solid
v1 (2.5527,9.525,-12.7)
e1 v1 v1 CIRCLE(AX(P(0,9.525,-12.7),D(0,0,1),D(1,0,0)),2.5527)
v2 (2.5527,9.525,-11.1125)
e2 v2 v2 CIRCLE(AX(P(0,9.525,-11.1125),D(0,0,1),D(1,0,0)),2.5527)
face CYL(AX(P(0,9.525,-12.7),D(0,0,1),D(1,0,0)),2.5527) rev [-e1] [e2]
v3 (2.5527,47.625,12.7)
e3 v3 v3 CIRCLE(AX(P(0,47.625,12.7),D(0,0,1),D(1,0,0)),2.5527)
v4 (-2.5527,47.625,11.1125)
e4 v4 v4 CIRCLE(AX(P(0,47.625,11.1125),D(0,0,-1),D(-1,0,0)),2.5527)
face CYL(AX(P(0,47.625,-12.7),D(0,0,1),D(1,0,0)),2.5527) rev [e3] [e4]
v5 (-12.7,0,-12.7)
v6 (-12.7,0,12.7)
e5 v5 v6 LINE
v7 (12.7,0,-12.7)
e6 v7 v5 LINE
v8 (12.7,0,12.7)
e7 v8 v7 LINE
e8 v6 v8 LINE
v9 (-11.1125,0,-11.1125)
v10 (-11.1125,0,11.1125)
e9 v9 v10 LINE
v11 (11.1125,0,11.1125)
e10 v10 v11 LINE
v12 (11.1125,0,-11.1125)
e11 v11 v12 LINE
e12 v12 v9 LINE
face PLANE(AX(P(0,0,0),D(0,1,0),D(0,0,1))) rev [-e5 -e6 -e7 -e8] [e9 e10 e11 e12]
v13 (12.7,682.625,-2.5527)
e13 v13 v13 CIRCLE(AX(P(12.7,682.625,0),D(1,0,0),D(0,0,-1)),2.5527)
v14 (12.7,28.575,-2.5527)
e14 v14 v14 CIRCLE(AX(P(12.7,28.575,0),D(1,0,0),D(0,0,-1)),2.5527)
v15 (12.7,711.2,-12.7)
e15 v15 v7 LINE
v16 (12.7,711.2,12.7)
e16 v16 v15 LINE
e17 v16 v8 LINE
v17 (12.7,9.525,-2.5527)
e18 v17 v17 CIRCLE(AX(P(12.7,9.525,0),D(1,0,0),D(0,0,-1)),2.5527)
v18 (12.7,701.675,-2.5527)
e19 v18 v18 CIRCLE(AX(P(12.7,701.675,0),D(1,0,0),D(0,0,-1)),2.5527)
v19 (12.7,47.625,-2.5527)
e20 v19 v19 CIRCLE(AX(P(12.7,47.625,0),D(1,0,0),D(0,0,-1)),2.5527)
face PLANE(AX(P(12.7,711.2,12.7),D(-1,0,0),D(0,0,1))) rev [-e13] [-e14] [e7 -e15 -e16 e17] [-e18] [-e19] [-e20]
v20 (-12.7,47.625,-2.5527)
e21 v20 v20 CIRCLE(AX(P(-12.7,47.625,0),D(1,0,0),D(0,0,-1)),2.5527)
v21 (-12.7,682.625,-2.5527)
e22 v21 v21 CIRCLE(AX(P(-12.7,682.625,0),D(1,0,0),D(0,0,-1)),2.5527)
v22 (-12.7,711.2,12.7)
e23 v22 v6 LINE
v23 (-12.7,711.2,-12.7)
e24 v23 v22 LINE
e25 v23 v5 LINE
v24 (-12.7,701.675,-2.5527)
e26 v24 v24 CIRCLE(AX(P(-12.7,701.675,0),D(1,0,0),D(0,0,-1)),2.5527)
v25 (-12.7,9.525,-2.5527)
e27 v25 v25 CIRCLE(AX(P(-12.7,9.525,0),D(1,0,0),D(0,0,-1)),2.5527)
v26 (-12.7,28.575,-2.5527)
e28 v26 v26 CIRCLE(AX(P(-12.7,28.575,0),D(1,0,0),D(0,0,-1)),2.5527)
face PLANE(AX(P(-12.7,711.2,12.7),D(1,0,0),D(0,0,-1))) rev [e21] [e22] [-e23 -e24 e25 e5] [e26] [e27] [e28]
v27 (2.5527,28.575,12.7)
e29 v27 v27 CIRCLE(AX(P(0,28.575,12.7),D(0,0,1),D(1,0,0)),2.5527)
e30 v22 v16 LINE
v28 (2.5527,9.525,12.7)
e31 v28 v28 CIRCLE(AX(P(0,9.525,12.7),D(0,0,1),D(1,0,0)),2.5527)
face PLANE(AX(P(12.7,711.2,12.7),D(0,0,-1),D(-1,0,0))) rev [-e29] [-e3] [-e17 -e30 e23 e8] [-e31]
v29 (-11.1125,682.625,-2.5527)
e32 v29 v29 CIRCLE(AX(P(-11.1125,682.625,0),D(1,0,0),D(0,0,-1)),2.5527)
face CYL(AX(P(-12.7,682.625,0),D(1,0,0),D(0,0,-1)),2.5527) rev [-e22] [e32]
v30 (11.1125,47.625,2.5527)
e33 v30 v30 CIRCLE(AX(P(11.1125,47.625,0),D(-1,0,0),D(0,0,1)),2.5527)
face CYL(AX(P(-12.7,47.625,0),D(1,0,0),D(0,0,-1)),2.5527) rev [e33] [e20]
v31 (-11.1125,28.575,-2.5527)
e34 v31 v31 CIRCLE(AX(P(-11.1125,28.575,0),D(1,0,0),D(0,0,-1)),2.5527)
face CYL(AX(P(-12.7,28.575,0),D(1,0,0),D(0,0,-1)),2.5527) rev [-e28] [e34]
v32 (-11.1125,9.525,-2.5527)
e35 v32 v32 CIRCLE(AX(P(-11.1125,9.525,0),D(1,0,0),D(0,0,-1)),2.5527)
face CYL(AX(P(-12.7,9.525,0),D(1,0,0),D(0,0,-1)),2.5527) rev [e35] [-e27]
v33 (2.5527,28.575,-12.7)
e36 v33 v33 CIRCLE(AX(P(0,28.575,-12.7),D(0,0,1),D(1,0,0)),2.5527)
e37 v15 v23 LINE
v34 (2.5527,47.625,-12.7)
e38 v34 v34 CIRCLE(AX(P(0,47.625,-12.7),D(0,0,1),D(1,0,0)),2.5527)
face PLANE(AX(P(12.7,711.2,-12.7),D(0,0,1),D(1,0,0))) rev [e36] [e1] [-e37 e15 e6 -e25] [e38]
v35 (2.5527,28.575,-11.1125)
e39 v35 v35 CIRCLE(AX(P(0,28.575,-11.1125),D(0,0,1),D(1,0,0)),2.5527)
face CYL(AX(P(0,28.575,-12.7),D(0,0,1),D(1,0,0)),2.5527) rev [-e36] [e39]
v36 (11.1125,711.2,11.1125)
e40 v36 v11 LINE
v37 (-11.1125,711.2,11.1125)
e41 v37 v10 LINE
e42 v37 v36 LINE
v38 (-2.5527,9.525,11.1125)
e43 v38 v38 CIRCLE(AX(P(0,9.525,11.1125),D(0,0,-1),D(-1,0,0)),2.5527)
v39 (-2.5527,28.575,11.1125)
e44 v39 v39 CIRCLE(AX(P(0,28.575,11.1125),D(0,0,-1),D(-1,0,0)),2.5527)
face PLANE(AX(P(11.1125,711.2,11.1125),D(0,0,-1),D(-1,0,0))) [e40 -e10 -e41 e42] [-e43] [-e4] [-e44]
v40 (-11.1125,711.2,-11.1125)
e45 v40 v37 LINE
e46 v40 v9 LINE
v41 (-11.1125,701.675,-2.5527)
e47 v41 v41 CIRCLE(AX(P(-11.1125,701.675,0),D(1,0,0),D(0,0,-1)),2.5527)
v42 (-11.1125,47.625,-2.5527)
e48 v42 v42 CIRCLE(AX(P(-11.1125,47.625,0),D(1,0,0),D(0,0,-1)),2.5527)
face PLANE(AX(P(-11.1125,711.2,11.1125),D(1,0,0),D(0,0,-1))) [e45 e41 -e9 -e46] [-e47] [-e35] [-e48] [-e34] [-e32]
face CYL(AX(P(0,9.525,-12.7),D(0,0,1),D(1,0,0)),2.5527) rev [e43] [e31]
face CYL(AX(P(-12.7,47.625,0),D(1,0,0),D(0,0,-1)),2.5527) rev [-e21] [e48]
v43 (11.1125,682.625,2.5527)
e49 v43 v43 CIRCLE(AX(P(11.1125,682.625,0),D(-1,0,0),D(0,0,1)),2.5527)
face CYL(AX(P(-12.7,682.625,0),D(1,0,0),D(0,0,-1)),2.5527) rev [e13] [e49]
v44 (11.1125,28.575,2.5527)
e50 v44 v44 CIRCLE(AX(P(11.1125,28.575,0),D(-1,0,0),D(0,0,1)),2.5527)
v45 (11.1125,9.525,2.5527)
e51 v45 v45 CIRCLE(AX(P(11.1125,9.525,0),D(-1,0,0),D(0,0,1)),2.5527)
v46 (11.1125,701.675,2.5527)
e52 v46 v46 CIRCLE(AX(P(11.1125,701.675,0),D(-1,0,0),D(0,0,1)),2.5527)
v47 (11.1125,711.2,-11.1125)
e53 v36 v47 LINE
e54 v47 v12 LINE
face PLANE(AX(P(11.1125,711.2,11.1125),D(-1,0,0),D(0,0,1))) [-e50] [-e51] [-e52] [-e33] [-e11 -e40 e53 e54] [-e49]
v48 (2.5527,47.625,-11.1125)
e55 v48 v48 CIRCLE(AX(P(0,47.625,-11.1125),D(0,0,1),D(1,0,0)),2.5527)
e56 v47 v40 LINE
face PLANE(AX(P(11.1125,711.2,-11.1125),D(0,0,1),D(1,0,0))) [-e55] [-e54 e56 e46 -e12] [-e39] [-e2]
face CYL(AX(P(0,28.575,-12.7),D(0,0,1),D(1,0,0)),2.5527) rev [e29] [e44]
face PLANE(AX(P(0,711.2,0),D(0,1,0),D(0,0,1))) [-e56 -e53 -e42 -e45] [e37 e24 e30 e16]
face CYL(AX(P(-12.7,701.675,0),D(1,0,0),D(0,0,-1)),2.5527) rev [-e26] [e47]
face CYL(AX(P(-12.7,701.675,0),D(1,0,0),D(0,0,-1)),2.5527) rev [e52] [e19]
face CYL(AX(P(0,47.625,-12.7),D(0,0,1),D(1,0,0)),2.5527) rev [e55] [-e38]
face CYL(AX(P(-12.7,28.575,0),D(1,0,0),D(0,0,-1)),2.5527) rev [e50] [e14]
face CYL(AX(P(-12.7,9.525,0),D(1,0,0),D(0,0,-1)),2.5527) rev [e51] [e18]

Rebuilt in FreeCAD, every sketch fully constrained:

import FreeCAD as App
import Part
import Sketcher
Q = App.Units.Quantity


def add_polygon(sketch, points):
    """Adds a closed chain of lines whose ends are joined by coincident constraints."""
    first, n = sketch.GeometryCount, len(points)
    for a, b in zip(points, points[1:] + points[:1]):
        sketch.addGeometry(Part.LineSegment(App.Vector(*a, 0), App.Vector(*b, 0)), False)
    for i in range(n):
        sketch.addConstraint(Sketcher.Constraint("Coincident", first + i, 2, first + (i + 1) % n, 1))

doc = App.newDocument("Part")
body = doc.addObject("PartDesign::Body", "Body")

# Sketch on XZ plane
sketch1 = body.newObject("Sketcher::SketchObject", "Sketch")
sketch1.AttachmentSupport = (doc.getObject("XZ_Plane"), [""])
sketch1.MapMode = "FlatFace"
add_polygon(sketch1, [(-13, -13), (-13, 13), (13, 13), (13, -13)])  # lines 0-3
add_polygon(sketch1, [(11, 11), (-11, 11), (-11, -11), (11, -11)])  # lines 4-7
sketch1.addConstraint([
    Sketcher.Constraint("Vertical", 0),
    Sketcher.Constraint("Horizontal", 1),
    Sketcher.Constraint("Vertical", 2),
    Sketcher.Constraint("Horizontal", 3),
    Sketcher.Constraint("Horizontal", 4),
    Sketcher.Constraint("Vertical", 5),
    Sketcher.Constraint("Horizontal", 6),
    Sketcher.Constraint("Vertical", 7),
    Sketcher.Constraint("Symmetric", 0, 2, 2, 2, -1, 1),
    Sketcher.Constraint("Symmetric", 4, 2, 6, 2, -1, 1),
    Sketcher.Constraint("Equal", 3, 0),
    Sketcher.Constraint("Equal", 6, 5),
    Sketcher.Constraint("DistanceX", 1, 1, 1, 2, Q("1 in")),
    Sketcher.Constraint("DistanceX", 4, 2, 4, 1, Q("0.875 in")),
])
pad1 = body.newObject("PartDesign::Pad", "Pad")
pad1.Profile = sketch1
pad1.Length = Q("28 in")
pad1.Reversed = True

# Sketch on XY plane
sketch2 = body.newObject("Sketcher::SketchObject", "Sketch001")
sketch2.AttachmentSupport = (doc.getObject("XY_Plane"), [""])
sketch2.MapMode = "FlatFace"
sketch2.AttachmentOffset = App.Placement(App.Vector(0, 0, 0.5 * 25.4), App.Rotation())
sketch2.addGeometry([
    Part.Circle(App.Vector(0, 9.5, 0), App.Vector(0, 0, 1), 2.6),
    Part.Circle(App.Vector(0, 28.6, 0), App.Vector(0, 0, 1), 2.6),
    Part.Circle(App.Vector(0, 47.6, 0), App.Vector(0, 0, 1), 2.6),
], False)
sketch2.addConstraint([
    Sketcher.Constraint("Equal", 0, 1),
    Sketcher.Constraint("Equal", 1, 2),
    Sketcher.Constraint("PointOnObject", 0, 3, -2),
    Sketcher.Constraint("PointOnObject", 1, 3, -2),
    Sketcher.Constraint("PointOnObject", 2, 3, -2),
    Sketcher.Constraint("Diameter", 0, Q("0.201 in")),
    Sketcher.Constraint("DistanceY", 0, 3, 2, 3, Q("1.5 in")),
    Sketcher.Constraint("DistanceY", 0, 3, 1, 3, Q("0.75 in")),
    Sketcher.Constraint("DistanceY", -1, 1, 0, 3, Q("0.375 in")),
])
pocket1 = body.newObject("PartDesign::Pocket", "Pocket")
pocket1.Profile = sketch2
pocket1.Type = "ThroughAll"

# Sketch on YZ plane
sketch3 = body.newObject("Sketcher::SketchObject", "Sketch002")
sketch3.AttachmentSupport = (doc.getObject("YZ_Plane"), [""])
sketch3.MapMode = "FlatFace"
sketch3.AttachmentOffset = App.Placement(App.Vector(0, 0, 0.5 * 25.4), App.Rotation())
sketch3.addGeometry([
    Part.Circle(App.Vector(9.5, 0, 0), App.Vector(0, 0, 1), 2.6),  # 0
    Part.Circle(App.Vector(28.6, 0, 0), App.Vector(0, 0, 1), 2.6),  # 1
    Part.Circle(App.Vector(47.6, 0, 0), App.Vector(0, 0, 1), 2.6),  # 2
    Part.Circle(App.Vector(701.7, 0, 0), App.Vector(0, 0, 1), 2.6),  # 3
    Part.Circle(App.Vector(682.6, 0, 0), App.Vector(0, 0, 1), 2.6),  # 4
], False)
sketch3.addConstraint([
    Sketcher.Constraint("Equal", 0, 1),
    Sketcher.Constraint("Equal", 1, 2),
    Sketcher.Constraint("Equal", 2, 3),
    Sketcher.Constraint("Equal", 3, 4),
    Sketcher.Constraint("PointOnObject", 0, 3, -1),
    Sketcher.Constraint("PointOnObject", 1, 3, -1),
    Sketcher.Constraint("PointOnObject", 2, 3, -1),
    Sketcher.Constraint("PointOnObject", 3, 3, -1),
    Sketcher.Constraint("PointOnObject", 4, 3, -1),
    Sketcher.Constraint("Diameter", 0, Q("0.201 in")),
    Sketcher.Constraint("DistanceX", 2, 3, 4, 3, Q("25 in")),
    Sketcher.Constraint("DistanceX", 0, 3, 2, 3, Q("1.5 in")),
    Sketcher.Constraint("DistanceX", 1, 3, 3, 3, Q("26.5 in")),
    Sketcher.Constraint("DistanceX", 0, 3, 1, 3, Q("0.75 in")),
    Sketcher.Constraint("DistanceX", -1, 1, 0, 3, Q("0.375 in")),
])
pocket2 = body.newObject("PartDesign::Pocket", "Pocket001")
pocket2.Profile = sketch3
pocket2.Type = "ThroughAll"

doc.recompute()
